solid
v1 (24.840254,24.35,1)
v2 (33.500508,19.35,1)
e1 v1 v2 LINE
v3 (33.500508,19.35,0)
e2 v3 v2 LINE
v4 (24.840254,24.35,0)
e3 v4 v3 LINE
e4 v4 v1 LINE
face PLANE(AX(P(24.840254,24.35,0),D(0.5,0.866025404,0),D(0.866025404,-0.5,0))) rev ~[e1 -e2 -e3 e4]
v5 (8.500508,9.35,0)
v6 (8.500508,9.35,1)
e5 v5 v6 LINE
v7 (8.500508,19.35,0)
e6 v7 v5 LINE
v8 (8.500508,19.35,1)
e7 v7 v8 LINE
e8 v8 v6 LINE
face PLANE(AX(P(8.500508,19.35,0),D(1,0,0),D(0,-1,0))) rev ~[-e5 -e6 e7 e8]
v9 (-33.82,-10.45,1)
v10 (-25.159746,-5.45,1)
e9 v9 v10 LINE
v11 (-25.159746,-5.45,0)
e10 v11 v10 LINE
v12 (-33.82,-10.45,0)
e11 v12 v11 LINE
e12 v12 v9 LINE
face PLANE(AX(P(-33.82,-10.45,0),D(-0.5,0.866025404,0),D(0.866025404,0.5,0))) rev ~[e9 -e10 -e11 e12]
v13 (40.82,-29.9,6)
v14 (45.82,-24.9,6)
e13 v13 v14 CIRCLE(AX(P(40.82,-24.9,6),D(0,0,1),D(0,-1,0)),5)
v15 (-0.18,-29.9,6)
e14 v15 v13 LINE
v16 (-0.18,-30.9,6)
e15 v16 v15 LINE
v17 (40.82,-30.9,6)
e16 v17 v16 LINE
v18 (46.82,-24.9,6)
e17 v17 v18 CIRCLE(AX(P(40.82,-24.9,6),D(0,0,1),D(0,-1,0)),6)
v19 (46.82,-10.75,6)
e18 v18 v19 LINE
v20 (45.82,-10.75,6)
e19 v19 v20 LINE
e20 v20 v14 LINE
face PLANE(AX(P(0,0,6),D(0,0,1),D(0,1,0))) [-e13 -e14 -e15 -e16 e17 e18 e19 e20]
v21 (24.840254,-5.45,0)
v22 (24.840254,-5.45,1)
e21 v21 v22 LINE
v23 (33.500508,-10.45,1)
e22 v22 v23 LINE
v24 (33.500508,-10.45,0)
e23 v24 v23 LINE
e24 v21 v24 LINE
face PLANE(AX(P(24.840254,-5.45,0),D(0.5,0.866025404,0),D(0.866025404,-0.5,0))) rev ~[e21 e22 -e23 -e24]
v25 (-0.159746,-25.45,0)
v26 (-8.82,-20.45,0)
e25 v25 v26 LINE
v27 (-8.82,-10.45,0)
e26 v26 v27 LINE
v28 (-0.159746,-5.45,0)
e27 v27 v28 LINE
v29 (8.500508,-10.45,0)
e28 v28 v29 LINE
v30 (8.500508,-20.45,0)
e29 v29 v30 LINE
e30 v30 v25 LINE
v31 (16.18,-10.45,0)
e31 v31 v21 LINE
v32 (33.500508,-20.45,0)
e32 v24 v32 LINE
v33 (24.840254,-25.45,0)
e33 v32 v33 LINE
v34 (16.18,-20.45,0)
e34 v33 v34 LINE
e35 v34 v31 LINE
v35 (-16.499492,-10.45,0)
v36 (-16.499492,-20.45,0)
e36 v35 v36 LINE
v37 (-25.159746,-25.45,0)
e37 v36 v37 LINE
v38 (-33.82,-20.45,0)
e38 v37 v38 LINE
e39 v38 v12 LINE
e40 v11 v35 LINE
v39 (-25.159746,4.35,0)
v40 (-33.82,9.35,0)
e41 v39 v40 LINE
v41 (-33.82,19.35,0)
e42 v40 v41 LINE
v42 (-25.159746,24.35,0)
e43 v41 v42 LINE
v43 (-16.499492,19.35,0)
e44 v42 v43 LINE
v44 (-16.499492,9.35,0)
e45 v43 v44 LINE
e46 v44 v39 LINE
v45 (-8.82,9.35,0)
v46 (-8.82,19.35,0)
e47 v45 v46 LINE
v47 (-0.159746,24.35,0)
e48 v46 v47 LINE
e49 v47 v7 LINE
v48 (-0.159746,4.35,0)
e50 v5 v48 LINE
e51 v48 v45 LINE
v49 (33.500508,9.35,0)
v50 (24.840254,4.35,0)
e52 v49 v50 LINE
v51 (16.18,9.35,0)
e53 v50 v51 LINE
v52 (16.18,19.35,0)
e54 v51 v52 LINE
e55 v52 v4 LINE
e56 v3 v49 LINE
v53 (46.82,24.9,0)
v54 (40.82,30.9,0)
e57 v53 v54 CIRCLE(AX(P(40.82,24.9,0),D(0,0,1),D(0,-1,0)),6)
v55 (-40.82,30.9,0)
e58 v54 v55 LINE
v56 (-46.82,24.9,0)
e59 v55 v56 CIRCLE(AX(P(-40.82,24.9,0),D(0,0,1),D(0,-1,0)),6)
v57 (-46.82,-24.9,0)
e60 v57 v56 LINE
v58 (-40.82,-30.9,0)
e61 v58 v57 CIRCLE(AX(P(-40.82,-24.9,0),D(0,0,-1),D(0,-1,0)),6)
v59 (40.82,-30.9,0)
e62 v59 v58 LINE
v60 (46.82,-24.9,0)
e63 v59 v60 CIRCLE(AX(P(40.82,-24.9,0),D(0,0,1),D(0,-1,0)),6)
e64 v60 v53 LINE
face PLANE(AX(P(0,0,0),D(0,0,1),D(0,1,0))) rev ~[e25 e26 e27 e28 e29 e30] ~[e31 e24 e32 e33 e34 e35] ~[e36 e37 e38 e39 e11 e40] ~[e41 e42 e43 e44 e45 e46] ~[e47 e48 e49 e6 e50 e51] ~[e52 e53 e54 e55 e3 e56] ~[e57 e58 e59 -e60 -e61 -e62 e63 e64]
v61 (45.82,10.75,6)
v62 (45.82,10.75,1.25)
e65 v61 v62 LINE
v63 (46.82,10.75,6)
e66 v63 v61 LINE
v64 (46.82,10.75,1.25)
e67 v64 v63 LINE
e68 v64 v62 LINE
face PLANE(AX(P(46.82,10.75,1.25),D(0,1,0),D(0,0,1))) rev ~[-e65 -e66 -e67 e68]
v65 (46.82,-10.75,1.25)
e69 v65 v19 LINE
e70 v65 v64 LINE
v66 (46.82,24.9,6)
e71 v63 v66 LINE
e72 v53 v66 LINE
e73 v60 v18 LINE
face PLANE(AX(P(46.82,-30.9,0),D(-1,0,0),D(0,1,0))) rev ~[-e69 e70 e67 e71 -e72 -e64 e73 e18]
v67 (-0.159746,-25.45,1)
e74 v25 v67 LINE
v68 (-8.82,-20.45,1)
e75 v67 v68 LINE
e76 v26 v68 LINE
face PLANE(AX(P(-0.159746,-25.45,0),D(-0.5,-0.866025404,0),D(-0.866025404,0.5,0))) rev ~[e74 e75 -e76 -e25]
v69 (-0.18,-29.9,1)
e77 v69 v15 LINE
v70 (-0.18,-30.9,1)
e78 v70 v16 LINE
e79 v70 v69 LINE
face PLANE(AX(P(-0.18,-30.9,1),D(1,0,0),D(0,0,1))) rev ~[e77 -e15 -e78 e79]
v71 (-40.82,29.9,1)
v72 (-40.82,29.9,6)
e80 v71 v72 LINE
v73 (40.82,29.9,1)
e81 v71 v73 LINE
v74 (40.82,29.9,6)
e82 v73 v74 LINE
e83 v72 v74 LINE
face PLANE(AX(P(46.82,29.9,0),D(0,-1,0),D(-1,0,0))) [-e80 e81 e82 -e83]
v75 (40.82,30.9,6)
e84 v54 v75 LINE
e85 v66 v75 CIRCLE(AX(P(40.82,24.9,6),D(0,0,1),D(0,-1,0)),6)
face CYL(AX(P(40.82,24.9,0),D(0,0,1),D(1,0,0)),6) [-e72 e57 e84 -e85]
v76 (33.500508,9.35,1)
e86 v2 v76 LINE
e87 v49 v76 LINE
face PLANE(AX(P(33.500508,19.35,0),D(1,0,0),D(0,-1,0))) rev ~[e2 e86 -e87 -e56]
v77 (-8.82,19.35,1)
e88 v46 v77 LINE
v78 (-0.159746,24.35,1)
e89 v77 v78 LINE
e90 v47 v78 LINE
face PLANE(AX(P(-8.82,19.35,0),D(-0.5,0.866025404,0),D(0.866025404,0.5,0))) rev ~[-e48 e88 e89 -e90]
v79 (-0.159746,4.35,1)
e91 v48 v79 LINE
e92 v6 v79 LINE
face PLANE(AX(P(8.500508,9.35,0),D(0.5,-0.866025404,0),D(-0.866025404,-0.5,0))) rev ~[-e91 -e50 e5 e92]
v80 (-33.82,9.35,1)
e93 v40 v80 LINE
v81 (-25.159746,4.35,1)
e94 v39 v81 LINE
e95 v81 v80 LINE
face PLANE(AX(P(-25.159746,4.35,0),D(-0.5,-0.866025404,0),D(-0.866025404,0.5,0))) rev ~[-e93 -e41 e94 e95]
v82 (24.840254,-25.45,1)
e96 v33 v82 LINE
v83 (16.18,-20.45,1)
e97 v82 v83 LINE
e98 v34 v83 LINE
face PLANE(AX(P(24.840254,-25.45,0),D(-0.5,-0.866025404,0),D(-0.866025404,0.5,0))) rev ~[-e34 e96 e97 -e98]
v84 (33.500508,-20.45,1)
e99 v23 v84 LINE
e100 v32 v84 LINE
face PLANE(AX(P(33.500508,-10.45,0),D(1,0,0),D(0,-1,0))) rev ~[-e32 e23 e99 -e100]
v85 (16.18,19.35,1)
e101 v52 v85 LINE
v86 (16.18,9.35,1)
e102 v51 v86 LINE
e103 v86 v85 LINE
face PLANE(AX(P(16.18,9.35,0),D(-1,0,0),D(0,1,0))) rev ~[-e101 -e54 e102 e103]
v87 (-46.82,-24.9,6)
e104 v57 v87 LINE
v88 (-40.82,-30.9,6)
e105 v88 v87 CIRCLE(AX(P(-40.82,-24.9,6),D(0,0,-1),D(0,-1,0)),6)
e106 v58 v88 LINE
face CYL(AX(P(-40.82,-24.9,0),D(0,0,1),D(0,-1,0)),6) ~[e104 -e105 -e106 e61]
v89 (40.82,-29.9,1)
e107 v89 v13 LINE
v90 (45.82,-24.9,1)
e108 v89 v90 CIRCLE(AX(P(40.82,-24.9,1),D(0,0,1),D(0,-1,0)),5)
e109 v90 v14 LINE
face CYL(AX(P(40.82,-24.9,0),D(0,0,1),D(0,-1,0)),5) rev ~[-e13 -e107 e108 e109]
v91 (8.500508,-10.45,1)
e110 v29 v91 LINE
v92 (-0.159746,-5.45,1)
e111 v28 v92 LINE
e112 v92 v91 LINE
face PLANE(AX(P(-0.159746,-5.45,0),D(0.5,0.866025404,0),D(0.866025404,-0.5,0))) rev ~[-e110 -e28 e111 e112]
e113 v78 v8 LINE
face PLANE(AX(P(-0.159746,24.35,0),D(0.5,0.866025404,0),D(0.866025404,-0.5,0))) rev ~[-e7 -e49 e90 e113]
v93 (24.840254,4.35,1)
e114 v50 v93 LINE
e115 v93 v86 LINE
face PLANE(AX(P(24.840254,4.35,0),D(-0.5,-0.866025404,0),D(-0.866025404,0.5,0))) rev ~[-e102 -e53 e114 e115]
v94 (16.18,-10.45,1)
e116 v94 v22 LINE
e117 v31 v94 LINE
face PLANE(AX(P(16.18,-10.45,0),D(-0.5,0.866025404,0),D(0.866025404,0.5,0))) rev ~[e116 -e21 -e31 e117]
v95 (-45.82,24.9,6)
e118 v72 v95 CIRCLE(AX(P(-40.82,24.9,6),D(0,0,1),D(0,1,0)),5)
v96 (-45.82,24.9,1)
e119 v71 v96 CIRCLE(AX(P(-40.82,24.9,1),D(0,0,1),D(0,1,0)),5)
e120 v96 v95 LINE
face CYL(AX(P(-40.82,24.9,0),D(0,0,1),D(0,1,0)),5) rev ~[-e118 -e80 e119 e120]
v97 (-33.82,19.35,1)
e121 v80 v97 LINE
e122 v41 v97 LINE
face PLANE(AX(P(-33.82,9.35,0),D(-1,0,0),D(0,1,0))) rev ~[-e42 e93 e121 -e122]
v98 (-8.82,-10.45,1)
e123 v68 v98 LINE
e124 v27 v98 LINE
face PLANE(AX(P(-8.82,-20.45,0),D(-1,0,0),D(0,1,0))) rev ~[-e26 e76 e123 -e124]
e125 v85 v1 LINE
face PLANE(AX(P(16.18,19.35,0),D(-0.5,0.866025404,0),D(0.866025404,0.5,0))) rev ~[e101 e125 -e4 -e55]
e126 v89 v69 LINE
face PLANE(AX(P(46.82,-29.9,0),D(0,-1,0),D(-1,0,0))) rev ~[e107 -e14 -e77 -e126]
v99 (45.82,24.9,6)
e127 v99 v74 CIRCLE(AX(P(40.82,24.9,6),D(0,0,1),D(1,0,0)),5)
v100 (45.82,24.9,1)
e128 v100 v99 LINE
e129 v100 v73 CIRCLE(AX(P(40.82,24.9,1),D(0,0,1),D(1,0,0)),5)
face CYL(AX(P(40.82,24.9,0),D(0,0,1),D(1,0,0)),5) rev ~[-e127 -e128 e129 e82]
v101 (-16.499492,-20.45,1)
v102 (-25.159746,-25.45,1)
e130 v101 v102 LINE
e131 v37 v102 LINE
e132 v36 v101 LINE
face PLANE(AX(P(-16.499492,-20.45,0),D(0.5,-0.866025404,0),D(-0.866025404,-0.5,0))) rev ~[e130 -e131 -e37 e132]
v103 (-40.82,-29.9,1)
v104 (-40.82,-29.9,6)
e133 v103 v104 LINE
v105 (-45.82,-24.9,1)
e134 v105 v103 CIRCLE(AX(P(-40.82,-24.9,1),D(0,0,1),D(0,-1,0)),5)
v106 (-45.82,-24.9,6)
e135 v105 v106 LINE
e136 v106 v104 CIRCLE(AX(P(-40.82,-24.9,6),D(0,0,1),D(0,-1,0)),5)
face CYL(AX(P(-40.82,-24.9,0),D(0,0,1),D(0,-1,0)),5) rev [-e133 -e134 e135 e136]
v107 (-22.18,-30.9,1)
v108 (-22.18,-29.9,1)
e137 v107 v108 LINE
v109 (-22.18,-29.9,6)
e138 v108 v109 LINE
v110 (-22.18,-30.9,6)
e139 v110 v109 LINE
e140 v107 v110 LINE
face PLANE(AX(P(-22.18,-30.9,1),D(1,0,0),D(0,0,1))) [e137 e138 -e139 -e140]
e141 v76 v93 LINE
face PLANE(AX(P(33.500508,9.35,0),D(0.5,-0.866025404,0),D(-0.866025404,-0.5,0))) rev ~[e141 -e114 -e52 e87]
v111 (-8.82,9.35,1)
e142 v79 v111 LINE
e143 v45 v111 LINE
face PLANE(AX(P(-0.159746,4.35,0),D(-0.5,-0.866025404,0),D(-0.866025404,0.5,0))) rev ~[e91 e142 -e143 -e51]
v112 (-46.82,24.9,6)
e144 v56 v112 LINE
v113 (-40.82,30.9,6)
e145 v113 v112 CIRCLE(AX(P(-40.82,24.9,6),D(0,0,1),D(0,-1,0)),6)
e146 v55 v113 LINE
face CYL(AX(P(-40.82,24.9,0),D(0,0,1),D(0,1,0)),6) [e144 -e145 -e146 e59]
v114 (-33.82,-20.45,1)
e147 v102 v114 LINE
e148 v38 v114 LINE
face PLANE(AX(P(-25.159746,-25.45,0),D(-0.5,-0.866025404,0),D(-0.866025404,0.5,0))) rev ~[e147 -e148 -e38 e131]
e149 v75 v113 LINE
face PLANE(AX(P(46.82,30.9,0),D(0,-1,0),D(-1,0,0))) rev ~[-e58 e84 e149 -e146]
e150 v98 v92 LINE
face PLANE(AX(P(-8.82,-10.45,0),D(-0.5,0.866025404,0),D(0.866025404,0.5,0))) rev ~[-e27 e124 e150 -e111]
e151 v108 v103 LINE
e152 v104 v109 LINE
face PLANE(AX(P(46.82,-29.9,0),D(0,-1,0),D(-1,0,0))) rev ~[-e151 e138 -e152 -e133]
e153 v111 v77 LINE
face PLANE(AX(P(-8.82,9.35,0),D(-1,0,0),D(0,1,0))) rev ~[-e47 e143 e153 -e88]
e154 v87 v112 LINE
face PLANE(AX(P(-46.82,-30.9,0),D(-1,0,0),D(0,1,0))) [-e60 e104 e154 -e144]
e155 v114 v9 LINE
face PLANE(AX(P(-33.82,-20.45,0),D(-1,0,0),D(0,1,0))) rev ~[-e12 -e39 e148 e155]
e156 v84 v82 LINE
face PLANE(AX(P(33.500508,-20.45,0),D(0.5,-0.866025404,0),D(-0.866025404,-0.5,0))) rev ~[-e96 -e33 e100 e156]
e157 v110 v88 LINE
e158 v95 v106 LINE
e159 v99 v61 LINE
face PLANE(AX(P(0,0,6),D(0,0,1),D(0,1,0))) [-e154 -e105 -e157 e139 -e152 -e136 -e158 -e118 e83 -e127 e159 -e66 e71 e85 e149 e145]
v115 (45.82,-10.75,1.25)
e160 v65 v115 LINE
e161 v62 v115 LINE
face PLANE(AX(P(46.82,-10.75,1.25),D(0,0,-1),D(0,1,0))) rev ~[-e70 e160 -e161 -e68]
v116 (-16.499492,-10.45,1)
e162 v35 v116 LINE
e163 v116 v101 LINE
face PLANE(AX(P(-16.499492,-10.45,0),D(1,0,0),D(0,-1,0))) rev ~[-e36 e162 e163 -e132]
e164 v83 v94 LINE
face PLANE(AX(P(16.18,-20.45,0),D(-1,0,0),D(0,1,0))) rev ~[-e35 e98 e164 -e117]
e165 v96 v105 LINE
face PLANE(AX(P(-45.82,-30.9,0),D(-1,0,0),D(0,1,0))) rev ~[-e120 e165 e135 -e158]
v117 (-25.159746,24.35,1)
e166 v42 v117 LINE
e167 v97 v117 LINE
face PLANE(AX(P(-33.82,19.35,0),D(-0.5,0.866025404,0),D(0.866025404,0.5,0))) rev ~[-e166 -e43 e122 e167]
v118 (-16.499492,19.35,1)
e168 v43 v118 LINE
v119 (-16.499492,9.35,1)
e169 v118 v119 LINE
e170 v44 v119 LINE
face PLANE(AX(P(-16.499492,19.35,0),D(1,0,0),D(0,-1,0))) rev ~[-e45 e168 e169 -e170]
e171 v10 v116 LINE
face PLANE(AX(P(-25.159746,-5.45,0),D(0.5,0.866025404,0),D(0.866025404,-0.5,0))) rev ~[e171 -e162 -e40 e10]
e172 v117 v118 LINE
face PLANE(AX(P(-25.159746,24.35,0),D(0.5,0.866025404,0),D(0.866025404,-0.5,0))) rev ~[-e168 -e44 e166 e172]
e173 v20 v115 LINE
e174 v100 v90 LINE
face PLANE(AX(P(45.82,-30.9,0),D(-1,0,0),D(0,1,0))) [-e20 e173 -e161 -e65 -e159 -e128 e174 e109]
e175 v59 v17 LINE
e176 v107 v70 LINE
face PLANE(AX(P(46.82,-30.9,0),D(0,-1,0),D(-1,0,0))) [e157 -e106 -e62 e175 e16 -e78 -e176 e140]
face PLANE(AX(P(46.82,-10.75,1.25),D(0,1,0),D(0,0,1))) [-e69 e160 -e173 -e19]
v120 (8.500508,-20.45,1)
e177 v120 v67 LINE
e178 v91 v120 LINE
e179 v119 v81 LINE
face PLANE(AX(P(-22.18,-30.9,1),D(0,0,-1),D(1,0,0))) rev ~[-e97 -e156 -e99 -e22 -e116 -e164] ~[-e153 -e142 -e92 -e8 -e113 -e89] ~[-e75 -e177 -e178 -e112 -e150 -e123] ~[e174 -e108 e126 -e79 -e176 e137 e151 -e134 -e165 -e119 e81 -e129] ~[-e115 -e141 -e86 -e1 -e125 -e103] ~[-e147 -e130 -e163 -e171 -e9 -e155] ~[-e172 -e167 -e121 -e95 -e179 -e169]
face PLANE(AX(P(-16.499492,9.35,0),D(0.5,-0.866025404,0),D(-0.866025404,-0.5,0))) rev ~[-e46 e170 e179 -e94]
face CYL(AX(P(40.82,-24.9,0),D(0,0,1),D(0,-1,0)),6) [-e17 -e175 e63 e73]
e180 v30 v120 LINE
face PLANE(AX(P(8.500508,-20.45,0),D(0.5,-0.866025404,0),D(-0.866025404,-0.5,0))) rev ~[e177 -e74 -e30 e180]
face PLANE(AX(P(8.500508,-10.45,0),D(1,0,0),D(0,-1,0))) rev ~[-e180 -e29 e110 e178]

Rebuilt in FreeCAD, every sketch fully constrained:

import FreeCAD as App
import Part
import Sketcher
from FreeCAD import Vector
Q = App.Units.Quantity


def edges_at(feature, points):
    """Names of the edges that pass closest to the given points."""
    edges = feature.Shape.Edges
    near = lambda p: min(range(len(edges)), key=lambda i: edges[i].distToShape(Part.Vertex(*p))[0])
    return sorted({f"Edge{near(p) + 1}" for p in points})


def faces_at(feature, points):
    """Names of the faces that lie closest to the given points."""
    faces = feature.Shape.Faces
    near = lambda p: min(range(len(faces)), key=lambda i: faces[i].distToShape(Part.Vertex(*p))[0])
    return sorted({f"Face{near(p) + 1}" for p in points})


def add_polygon(sketch, points):
    """Adds a closed chain of lines whose ends are joined by coincident constraints."""
    first, n = sketch.GeometryCount, len(points)
    for a, b in zip(points, points[1:] + points[:1]):
        sketch.addGeometry(Part.LineSegment(App.Vector(*a, 0), App.Vector(*b, 0)), False)
    for i in range(n):
        sketch.addConstraint(Sketcher.Constraint("Coincident", first + i, 2, first + (i + 1) % n, 1))

doc = App.newDocument("Part")
params = doc.addObject("Spreadsheet::Sheet", "Params")
for row, (alias, value) in enumerate([
    ("sketch1_height", "61.8 mm"),
    ("sketch1_width", "93.64 mm"),
    ("pad1_length", "6 mm"),
    ("fillet_radius", "6 mm"),
    ("thickness_wall", "1 mm"),
    ("sketch2_width", "21.5 mm"),
    ("sketch2_height", "9.5 mm"),
    ("pocket1_length", "6 mm"),
    ("sketch3_width", "22 mm"),
    ("sketch3_height", "5 mm"),
    ("pocket2_length", "6 mm"),
    ("sketch4_height", "10 mm"),
    ("sketch4_length", "10 mm"),
    ("pocket3_length", "6 mm"),
    ("linearpattern_pitch", "25 mm"),
], start=1):
    params.set(f"A{row}", alias)
    params.set(f"B{row}", "=" + value)
    params.setAlias(f"B{row}", alias)

body = doc.addObject("PartDesign::Body", "Body")

# Sketch on XY plane
sketch1 = body.newObject("Sketcher::SketchObject", "Sketch")
sketch1.AttachmentSupport = (doc.getObject("XY_Plane"), [""])
sketch1.MapMode = "FlatFace"
add_polygon(sketch1, [(-46.82, -30.9), (46.82, -30.9), (46.82, 30.9), (-46.82, 30.9)])  # lines 0-3
sketch1.addConstraint([
    Sketcher.Constraint("Horizontal", 0),
    Sketcher.Constraint("Vertical", 1),
    Sketcher.Constraint("Horizontal", 2),
    Sketcher.Constraint("Vertical", 3),
    Sketcher.Constraint("Symmetric", 0, 2, 2, 2, -1, 1),
    Sketcher.Constraint("DistanceY", 1, 1, 1, 2, 61.8),
    Sketcher.Constraint("DistanceX", 0, 1, 0, 2, 93.64),
])
sketch1.setExpression("Constraints[9]", "Params.sketch1_height")
sketch1.setExpression("Constraints[10]", "Params.sketch1_width")
pad1 = body.newObject("PartDesign::Pad", "Pad")
pad1.Profile = sketch1
pad1.setExpression("Length", "Params.pad1_length")
doc.recompute()

fillet = body.newObject("PartDesign::Fillet", "Fillet")
fillet.Base = (pad1, edges_at(pad1, [
    (46.82, 30.9, 3),
    (46.82, -30.9, 3),
    (-46.82, -30.9, 3),
    (-46.82, 30.9, 3),
]))
fillet.setExpression("Radius", "Params.fillet_radius")
doc.recompute()

thickness = body.newObject("PartDesign::Thickness", "Thickness")
thickness.Base = (fillet, faces_at(fillet, [(0, 0, 6)]))
thickness.setExpression("Value", "Params.thickness_wall")
thickness.Reversed = True
thickness.Join = "Intersection"

# Sketch on YZ plane
sketch2 = body.newObject("Sketcher::SketchObject", "Sketch001")
sketch2.AttachmentSupport = (doc.getObject("YZ_Plane"), [""])
sketch2.MapMode = "FlatFace"
sketch2.AttachmentOffset = App.Placement(Vector(0, 0, 46.82), App.Rotation())
add_polygon(sketch2, [(-10.75, 10.75), (-10.75, 1.25), (10.75, 1.25), (10.75, 10.75)])  # lines 0-3
sketch2.addConstraint([
    Sketcher.Constraint("Vertical", 0),
    Sketcher.Constraint("Horizontal", 1),
    Sketcher.Constraint("Vertical", 2),
    Sketcher.Constraint("Horizontal", 3),
    Sketcher.Constraint("DistanceX", 1, 1, 1, 2, 21.5),
    Sketcher.Constraint("DistanceY", 0, 2, 0, 1, 9.5),
    Sketcher.Constraint("DistanceX", 0, 2, -1, 1, 10.75),
    Sketcher.Constraint("DistanceY", -1, 1, 0, 2, 1.25),
])
sketch2.setExpression("Constraints[8]", "Params.sketch2_width")
sketch2.setExpression("Constraints[9]", "Params.sketch2_height")
pocket1 = body.newObject("PartDesign::Pocket", "Pocket")
pocket1.Profile = sketch2
pocket1.setExpression("Length", "Params.pocket1_length")

# Sketch on XZ plane
sketch3 = body.newObject("Sketcher::SketchObject", "Sketch002")
sketch3.AttachmentSupport = (doc.getObject("XZ_Plane"), [""])
sketch3.MapMode = "FlatFace"
sketch3.AttachmentOffset = App.Placement(Vector(0, 0, 30.9), App.Rotation())
add_polygon(sketch3, [(-22.18, 6), (-22.18, 1), (-0.18, 1), (-0.18, 6)])  # lines 0-3
sketch3.addConstraint([
    Sketcher.Constraint("Vertical", 0),
    Sketcher.Constraint("Horizontal", 1),
    Sketcher.Constraint("Vertical", 2),
    Sketcher.Constraint("Horizontal", 3),
    Sketcher.Constraint("DistanceX", 1, 1, 1, 2, 22.0),
    Sketcher.Constraint("DistanceY", 0, 2, 0, 1, 5.0),
    Sketcher.Constraint("DistanceY", -1, 1, 0, 2, 1.0),
    Sketcher.Constraint("DistanceX", 0, 2, -1, 1, 22.18),
])
sketch3.setExpression("Constraints[8]", "Params.sketch3_width")
sketch3.setExpression("Constraints[9]", "Params.sketch3_height")
pocket2 = body.newObject("PartDesign::Pocket", "Pocket001")
pocket2.Profile = sketch3
pocket2.setExpression("Length", "Params.pocket2_length")

# Sketch on XY plane
sketch4 = body.newObject("Sketcher::SketchObject", "Sketch003")
sketch4.AttachmentSupport = (doc.getObject("XY_Plane"), [""])
sketch4.MapMode = "FlatFace"
add_polygon(sketch4, [(-25.159746, -25.45), (-33.82, -20.45), (-33.82, -10.45), (-25.159746, -5.45), (-16.499492, -10.45), (-16.499492, -20.45)])  # lines 0-5
add_polygon(sketch4, [(-25.159746, 4.35), (-33.82, 9.35), (-33.82, 19.35), (-25.159746, 24.35), (-16.499492, 19.35), (-16.499492, 9.35)])  # lines 6-11
sketch4.addConstraint([
    Sketcher.Constraint("Vertical", 1),
    Sketcher.Constraint("Vertical", 4),
    Sketcher.Constraint("Vertical", 7),
    Sketcher.Constraint("Vertical", 10),
    Sketcher.Constraint("Parallel", 0, 3),
    Sketcher.Constraint("Parallel", 2, 5),
    Sketcher.Constraint("Parallel", 3, 6),
    Sketcher.Constraint("Parallel", 5, 8),
    Sketcher.Constraint("Parallel", 6, 9),
    Sketcher.Constraint("Parallel", 8, 11),
    Sketcher.Constraint("Horizontal", 1, 2, 3, 2),
    Sketcher.Constraint("Horizontal", 0, 2, 4, 2),
    Sketcher.Constraint("Horizontal", 7, 2, 9, 2),
    Sketcher.Constraint("Horizontal", 6, 2, 10, 2),
    Sketcher.Constraint("Vertical", 2, 2, 5, 2),
    Sketcher.Constraint("Vertical", 1, 2, 6, 2),
    Sketcher.Constraint("Vertical", 5, 2, 8, 2),
    Sketcher.Constraint("Equal", 4, 7),
    Sketcher.Constraint("DistanceY", 1, 1, 1, 2, 10.0),
    Sketcher.Constraint("Angle", 0, Q("150 deg")),
    Sketcher.Constraint("Distance", 0, 10.0),
    Sketcher.Constraint("DistanceY", 2, 2, 6, 2, 14.8),
    Sketcher.Constraint("DistanceX", 0, 2, -1, 1, 33.82),
    Sketcher.Constraint("DistanceY", 0, 2, -1, 1, 20.45),
])
sketch4.setExpression("Constraints[30]", "Params.sketch4_height")
sketch4.setExpression("Constraints[32]", "Params.sketch4_length")
pocket3 = body.newObject("PartDesign::Pocket", "Pocket002")
pocket3.Profile = sketch4
pocket3.setExpression("Length", "Params.pocket3_length")
pocket3.Reversed = True
doc.recompute()

linearpattern = body.newObject("PartDesign::LinearPattern", "LinearPattern")
linearpattern.Originals = [pocket3]
linearpattern.Direction = (doc.getObject("X_Axis"), [""])
linearpattern.Mode = "offset"
linearpattern.setExpression("Offset", "Params.linearpattern_pitch")
linearpattern.Occurrences = 3
body.Tip = linearpattern

doc.recompute()
